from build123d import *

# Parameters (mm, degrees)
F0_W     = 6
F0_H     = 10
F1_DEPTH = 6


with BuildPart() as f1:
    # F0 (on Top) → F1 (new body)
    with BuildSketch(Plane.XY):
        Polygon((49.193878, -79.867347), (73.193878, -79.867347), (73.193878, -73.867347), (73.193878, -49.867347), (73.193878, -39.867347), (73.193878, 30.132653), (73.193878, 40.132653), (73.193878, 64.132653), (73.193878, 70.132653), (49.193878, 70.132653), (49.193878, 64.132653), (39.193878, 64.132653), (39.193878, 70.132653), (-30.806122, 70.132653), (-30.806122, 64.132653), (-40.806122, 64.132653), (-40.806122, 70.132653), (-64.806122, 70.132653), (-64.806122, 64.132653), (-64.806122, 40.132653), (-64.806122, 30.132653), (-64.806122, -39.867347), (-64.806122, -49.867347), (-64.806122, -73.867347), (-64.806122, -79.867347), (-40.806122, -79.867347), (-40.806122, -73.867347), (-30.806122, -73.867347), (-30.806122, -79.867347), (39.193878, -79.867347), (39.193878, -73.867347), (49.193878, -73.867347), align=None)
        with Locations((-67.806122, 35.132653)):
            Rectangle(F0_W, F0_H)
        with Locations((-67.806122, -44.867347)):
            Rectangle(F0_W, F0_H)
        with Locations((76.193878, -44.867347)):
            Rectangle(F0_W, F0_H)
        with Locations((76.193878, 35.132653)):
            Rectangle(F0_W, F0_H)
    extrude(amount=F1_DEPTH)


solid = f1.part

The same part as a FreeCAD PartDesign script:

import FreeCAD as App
import Part
import Sketcher

V = App.Vector
Q = App.Units.Quantity

doc = App.newDocument("Part")
body = doc.addObject("PartDesign::Body", "Body")

sketch1 = body.newObject("Sketcher::SketchObject", "Sketch")
sketch1.AttachmentSupport = (doc.getObject("XY_Plane"), [""])
sketch1.MapMode = "FlatFace"
sketch1.addGeometry(Part.LineSegment(V(49, -80, 0), V(73, -80, 0)), False)
sketch1.addGeometry(Part.LineSegment(V(73, -80, 0), V(73, -50, 0)), False)
sketch1.addGeometry(Part.LineSegment(V(73, -50, 0), V(79, -50, 0)), False)
sketch1.addGeometry(Part.LineSegment(V(79, -50, 0), V(79, -40, 0)), False)
sketch1.addGeometry(Part.LineSegment(V(79, -40, 0), V(73, -40, 0)), False)
sketch1.addGeometry(Part.LineSegment(V(73, -40, 0), V(73, 30, 0)), False)
sketch1.addGeometry(Part.LineSegment(V(73, 30, 0), V(79, 30, 0)), False)
sketch1.addGeometry(Part.LineSegment(V(79, 30, 0), V(79, 40, 0)), False)
sketch1.addGeometry(Part.LineSegment(V(79, 40, 0), V(73, 40, 0)), False)
sketch1.addGeometry(Part.LineSegment(V(73, 40, 0), V(73, 70, 0)), False)
sketch1.addGeometry(Part.LineSegment(V(73, 70, 0), V(49, 70, 0)), False)
sketch1.addGeometry(Part.LineSegment(V(49, 70, 0), V(49, 64, 0)), False)
sketch1.addGeometry(Part.LineSegment(V(49, 64, 0), V(39, 64, 0)), False)
sketch1.addGeometry(Part.LineSegment(V(39, 64, 0), V(39, 70, 0)), False)
sketch1.addGeometry(Part.LineSegment(V(39, 70, 0), V(-31, 70, 0)), False)
sketch1.addGeometry(Part.LineSegment(V(-31, 70, 0), V(-31, 64, 0)), False)
sketch1.addGeometry(Part.LineSegment(V(-31, 64, 0), V(-41, 64, 0)), False)
sketch1.addGeometry(Part.LineSegment(V(-41, 64, 0), V(-41, 70, 0)), False)
sketch1.addGeometry(Part.LineSegment(V(-41, 70, 0), V(-65, 70, 0)), False)
sketch1.addGeometry(Part.LineSegment(V(-65, 70, 0), V(-65, 40, 0)), False)
sketch1.addGeometry(Part.LineSegment(V(-65, 40, 0), V(-71, 40, 0)), False)
sketch1.addGeometry(Part.LineSegment(V(-71, 40, 0), V(-71, 30, 0)), False)
sketch1.addGeometry(Part.LineSegment(V(-71, 30, 0), V(-65, 30, 0)), False)
sketch1.addGeometry(Part.LineSegment(V(-65, 30, 0), V(-65, -40, 0)), False)
sketch1.addGeometry(Part.LineSegment(V(-65, -40, 0), V(-71, -40, 0)), False)
sketch1.addGeometry(Part.LineSegment(V(-71, -40, 0), V(-71, -50, 0)), False)
sketch1.addGeometry(Part.LineSegment(V(-71, -50, 0), V(-65, -50, 0)), False)
sketch1.addGeometry(Part.LineSegment(V(-65, -50, 0), V(-65, -80, 0)), False)
sketch1.addGeometry(Part.LineSegment(V(-65, -80, 0), V(-41, -80, 0)), False)
sketch1.addGeometry(Part.LineSegment(V(-41, -80, 0), V(-41, -74, 0)), False)
sketch1.addGeometry(Part.LineSegment(V(-41, -74, 0), V(-31, -74, 0)), False)
sketch1.addGeometry(Part.LineSegment(V(-31, -74, 0), V(-31, -80, 0)), False)
sketch1.addGeometry(Part.LineSegment(V(-31, -80, 0), V(39, -80, 0)), False)
sketch1.addGeometry(Part.LineSegment(V(39, -80, 0), V(39, -74, 0)), False)
sketch1.addGeometry(Part.LineSegment(V(39, -74, 0), V(49, -74, 0)), False)
sketch1.addGeometry(Part.LineSegment(V(49, -74, 0), V(49, -80, 0)), False)
sketch1.addConstraint(Sketcher.Constraint("Coincident", 0, 2, 1, 1))
sketch1.addConstraint(Sketcher.Constraint("Coincident", 1, 2, 2, 1))
sketch1.addConstraint(Sketcher.Constraint("Coincident", 2, 2, 3, 1))
sketch1.addConstraint(Sketcher.Constraint("Coincident", 3, 2, 4, 1))
sketch1.addConstraint(Sketcher.Constraint("Coincident", 4, 2, 5, 1))
sketch1.addConstraint(Sketcher.Constraint("Coincident", 5, 2, 6, 1))
sketch1.addConstraint(Sketcher.Constraint("Coincident", 6, 2, 7, 1))
sketch1.addConstraint(Sketcher.Constraint("Coincident", 7, 2, 8, 1))
sketch1.addConstraint(Sketcher.Constraint("Coincident", 8, 2, 9, 1))
sketch1.addConstraint(Sketcher.Constraint("Coincident", 9, 2, 10, 1))
sketch1.addConstraint(Sketcher.Constraint("Coincident", 10, 2, 11, 1))
sketch1.addConstraint(Sketcher.Constraint("Coincident", 11, 2, 12, 1))
sketch1.addConstraint(Sketcher.Constraint("Coincident", 12, 2, 13, 1))
sketch1.addConstraint(Sketcher.Constraint("Coincident", 13, 2, 14, 1))
sketch1.addConstraint(Sketcher.Constraint("Coincident", 14, 2, 15, 1))
sketch1.addConstraint(Sketcher.Constraint("Coincident", 15, 2, 16, 1))
sketch1.addConstraint(Sketcher.Constraint("Coincident", 16, 2, 17, 1))
sketch1.addConstraint(Sketcher.Constraint("Coincident", 17, 2, 18, 1))
sketch1.addConstraint(Sketcher.Constraint("Coincident", 18, 2, 19, 1))
sketch1.addConstraint(Sketcher.Constraint("Coincident", 19, 2, 20, 1))
sketch1.addConstraint(Sketcher.Constraint("Coincident", 20, 2, 21, 1))
sketch1.addConstraint(Sketcher.Constraint("Coincident", 21, 2, 22, 1))
sketch1.addConstraint(Sketcher.Constraint("Coincident", 22, 2, 23, 1))
sketch1.addConstraint(Sketcher.Constraint("Coincident", 23, 2, 24, 1))
sketch1.addConstraint(Sketcher.Constraint("Coincident", 24, 2, 25, 1))
sketch1.addConstraint(Sketcher.Constraint("Coincident", 25, 2, 26, 1))
sketch1.addConstraint(Sketcher.Constraint("Coincident", 26, 2, 27, 1))
sketch1.addConstraint(Sketcher.Constraint("Coincident", 27, 2, 28, 1))
sketch1.addConstraint(Sketcher.Constraint("Coincident", 28, 2, 29, 1))
sketch1.addConstraint(Sketcher.Constraint("Coincident", 29, 2, 30, 1))
sketch1.addConstraint(Sketcher.Constraint("Coincident", 30, 2, 31, 1))
sketch1.addConstraint(Sketcher.Constraint("Coincident", 31, 2, 32, 1))
sketch1.addConstraint(Sketcher.Constraint("Coincident", 32, 2, 33, 1))
sketch1.addConstraint(Sketcher.Constraint("Coincident", 33, 2, 34, 1))
sketch1.addConstraint(Sketcher.Constraint("Coincident", 34, 2, 35, 1))
sketch1.addConstraint(Sketcher.Constraint("Coincident", 35, 2, 0, 1))
sketch1.addConstraint(Sketcher.Constraint("Horizontal", 0))
sketch1.addConstraint(Sketcher.Constraint("Vertical", 1))
sketch1.addConstraint(Sketcher.Constraint("Horizontal", 2))
sketch1.addConstraint(Sketcher.Constraint("Vertical", 3))
sketch1.addConstraint(Sketcher.Constraint("Horizontal", 4))
sketch1.addConstraint(Sketcher.Constraint("Vertical", 5))
sketch1.addConstraint(Sketcher.Constraint("Horizontal", 6))
sketch1.addConstraint(Sketcher.Constraint("Vertical", 7))
sketch1.addConstraint(Sketcher.Constraint("Horizontal", 8))
sketch1.addConstraint(Sketcher.Constraint("Vertical", 9))
sketch1.addConstraint(Sketcher.Constraint("Horizontal", 10))
sketch1.addConstraint(Sketcher.Constraint("Vertical", 11))
sketch1.addConstraint(Sketcher.Constraint("Horizontal", 12))
sketch1.addConstraint(Sketcher.Constraint("Vertical", 13))
sketch1.addConstraint(Sketcher.Constraint("Horizontal", 14))
sketch1.addConstraint(Sketcher.Constraint("Vertical", 15))
sketch1.addConstraint(Sketcher.Constraint("Horizontal", 16))
sketch1.addConstraint(Sketcher.Constraint("Vertical", 17))
sketch1.addConstraint(Sketcher.Constraint("Horizontal", 18))
sketch1.addConstraint(Sketcher.Constraint("Vertical", 19))
sketch1.addConstraint(Sketcher.Constraint("Horizontal", 20))
sketch1.addConstraint(Sketcher.Constraint("Vertical", 21))
sketch1.addConstraint(Sketcher.Constraint("Horizontal", 22))
sketch1.addConstraint(Sketcher.Constraint("Vertical", 23))
sketch1.addConstraint(Sketcher.Constraint("Horizontal", 24))
sketch1.addConstraint(Sketcher.Constraint("Vertical", 25))
sketch1.addConstraint(Sketcher.Constraint("Horizontal", 26))
sketch1.addConstraint(Sketcher.Constraint("Vertical", 27))
sketch1.addConstraint(Sketcher.Constraint("Horizontal", 28))
sketch1.addConstraint(Sketcher.Constraint("Vertical", 29))
sketch1.addConstraint(Sketcher.Constraint("Horizontal", 30))
sketch1.addConstraint(Sketcher.Constraint("Vertical", 31))
sketch1.addConstraint(Sketcher.Constraint("Horizontal", 32))
sketch1.addConstraint(Sketcher.Constraint("Vertical", 33))
sketch1.addConstraint(Sketcher.Constraint("Horizontal", 34))
sketch1.addConstraint(Sketcher.Constraint("Vertical", 35))
sketch1.addConstraint(Sketcher.Constraint("Horizontal", 10, 2, 13, 2))
sketch1.addConstraint(Sketcher.Constraint("Horizontal", 12, 2, 15, 2))
sketch1.addConstraint(Sketcher.Constraint("Horizontal", 14, 2, 17, 2))
sketch1.addConstraint(Sketcher.Constraint("Horizontal", 8, 2, 19, 2))
sketch1.addConstraint(Sketcher.Constraint("Horizontal", 6, 2, 21, 2))
sketch1.addConstraint(Sketcher.Constraint("Horizontal", 4, 2, 23, 2))
sketch1.addConstraint(Sketcher.Constraint("Horizontal", 2, 2, 25, 2))
sketch1.addConstraint(Sketcher.Constraint("Horizontal", 0, 2, 27, 2))
sketch1.addConstraint(Sketcher.Constraint("Horizontal", 28, 2, 31, 2))
sketch1.addConstraint(Sketcher.Constraint("Horizontal", 30, 2, 33, 2))
sketch1.addConstraint(Sketcher.Constraint("Vertical", 1, 2, 4, 2))
sketch1.addConstraint(Sketcher.Constraint("Vertical", 3, 2, 6, 2))
sketch1.addConstraint(Sketcher.Constraint("Vertical", 5, 2, 8, 2))
sketch1.addConstraint(Sketcher.Constraint("Vertical", 19, 2, 22, 2))
sketch1.addConstraint(Sketcher.Constraint("Vertical", 21, 2, 24, 2))
sketch1.addConstraint(Sketcher.Constraint("Vertical", 23, 2, 26, 2))
sketch1.addConstraint(Sketcher.Constraint("Vertical", 17, 2, 28, 2))
sketch1.addConstraint(Sketcher.Constraint("Vertical", 15, 2, 30, 2))
sketch1.addConstraint(Sketcher.Constraint("Vertical", 13, 2, 32, 2))
sketch1.addConstraint(Sketcher.Constraint("Vertical", 11, 2, 34, 2))
sketch1.addConstraint(Sketcher.Constraint("Equal", 12, 16))
sketch1.addConstraint(Sketcher.Constraint("Equal", 10, 18))
sketch1.addConstraint(Sketcher.Constraint("Equal", 8, 20))
sketch1.addConstraint(Sketcher.Constraint("Equal", 34, 3))
sketch1.addConstraint(Sketcher.Constraint("Equal", 32, 5))
sketch1.addConstraint(Sketcher.Constraint("Equal", 3, 7))
sketch1.addConstraint(Sketcher.Constraint("Equal", 1, 9))
sketch1.addConstraint(Sketcher.Constraint("Equal", 26, 11))
sketch1.addConstraint(Sketcher.Constraint("Equal", 17, 29))
sketch1.addConstraint(Sketcher.Constraint("DistanceX", 0, 1, 0, 2, Q("24 mm")))
sketch1.addConstraint(Sketcher.Constraint("DistanceX", 2, 1, 2, 2, Q("6 mm")))
sketch1.addConstraint(Sketcher.Constraint("DistanceX", 12, 2, 12, 1, Q("10 mm")))
sketch1.addConstraint(Sketcher.Constraint("DistanceX", 14, 2, 14, 1, Q("70 mm")))
sketch1.addConstraint(Sketcher.Constraint("DistanceY", 1, 1, 1, 2, Q("30 mm")))
sketch1.addConstraint(Sketcher.Constraint("DistanceX", -1, 1, 0, 2, Q("73.193878 mm")))
sketch1.addConstraint(Sketcher.Constraint("DistanceY", 0, 2, -1, 1, Q("79.867347 mm")))
pad1 = body.newObject("PartDesign::Pad", "Pad")
pad1.Profile = sketch1
pad1.Length = 6

doc.recompute()
